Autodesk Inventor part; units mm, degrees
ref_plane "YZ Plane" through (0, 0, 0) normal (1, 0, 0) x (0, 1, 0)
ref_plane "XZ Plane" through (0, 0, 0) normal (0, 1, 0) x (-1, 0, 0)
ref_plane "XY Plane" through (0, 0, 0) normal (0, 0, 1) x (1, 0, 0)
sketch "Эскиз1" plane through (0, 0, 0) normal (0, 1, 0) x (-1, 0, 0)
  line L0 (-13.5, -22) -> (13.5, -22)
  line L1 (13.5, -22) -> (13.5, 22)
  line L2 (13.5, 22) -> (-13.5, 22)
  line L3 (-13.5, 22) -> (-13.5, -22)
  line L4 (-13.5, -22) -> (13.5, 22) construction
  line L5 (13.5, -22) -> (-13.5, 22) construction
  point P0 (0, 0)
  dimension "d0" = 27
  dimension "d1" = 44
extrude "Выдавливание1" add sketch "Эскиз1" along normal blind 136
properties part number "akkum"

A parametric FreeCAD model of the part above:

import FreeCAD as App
import Part
import Sketcher
from FreeCAD import Vector
Q = App.Units.Quantity


def add_polygon(sketch, points):
    """Adds a closed chain of lines whose ends are joined by coincident constraints."""
    first, n = sketch.GeometryCount, len(points)
    for a, b in zip(points, points[1:] + points[:1]):
        sketch.addGeometry(Part.LineSegment(App.Vector(*a, 0), App.Vector(*b, 0)), False)
    for i in range(n):
        sketch.addConstraint(Sketcher.Constraint("Coincident", first + i, 2, first + (i + 1) % n, 1))

doc = App.newDocument("Part")
body = doc.addObject("PartDesign::Body", "Body")

sketch1 = doc.addObject("Sketcher::SketchObject", "Sketch")
body.addObject(sketch1)
sketch1.AttachmentSupport = (doc.XZ_Plane, [""])
sketch1.MapMode = "FlatFace"
add_polygon(sketch1, [(13.5, 22), (13.5, -22), (-13.5, -22), (-13.5, 22)])
sketch1.addConstraint(Sketcher.Constraint("Vertical", 0))
sketch1.addConstraint(Sketcher.Constraint("Horizontal", 1))
sketch1.addConstraint(Sketcher.Constraint("Vertical", 2))
sketch1.addConstraint(Sketcher.Constraint("Horizontal", 3))
sketch1.addConstraint(Sketcher.Constraint("Symmetric", 0, 2, 2, 2, -1, 1))
sketch1.addConstraint(Sketcher.Constraint("DistanceX", 1, 2, 1, 1, Q("27 mm")))
sketch1.addConstraint(Sketcher.Constraint("DistanceY", 0, 2, 0, 1, Q("44 mm")))
pad1 = doc.addObject("PartDesign::Pad", "Pad")
body.addObject(pad1)
pad1.Profile = sketch1
pad1.Length = 136
pad1.Reversed = True

doc.recompute()
